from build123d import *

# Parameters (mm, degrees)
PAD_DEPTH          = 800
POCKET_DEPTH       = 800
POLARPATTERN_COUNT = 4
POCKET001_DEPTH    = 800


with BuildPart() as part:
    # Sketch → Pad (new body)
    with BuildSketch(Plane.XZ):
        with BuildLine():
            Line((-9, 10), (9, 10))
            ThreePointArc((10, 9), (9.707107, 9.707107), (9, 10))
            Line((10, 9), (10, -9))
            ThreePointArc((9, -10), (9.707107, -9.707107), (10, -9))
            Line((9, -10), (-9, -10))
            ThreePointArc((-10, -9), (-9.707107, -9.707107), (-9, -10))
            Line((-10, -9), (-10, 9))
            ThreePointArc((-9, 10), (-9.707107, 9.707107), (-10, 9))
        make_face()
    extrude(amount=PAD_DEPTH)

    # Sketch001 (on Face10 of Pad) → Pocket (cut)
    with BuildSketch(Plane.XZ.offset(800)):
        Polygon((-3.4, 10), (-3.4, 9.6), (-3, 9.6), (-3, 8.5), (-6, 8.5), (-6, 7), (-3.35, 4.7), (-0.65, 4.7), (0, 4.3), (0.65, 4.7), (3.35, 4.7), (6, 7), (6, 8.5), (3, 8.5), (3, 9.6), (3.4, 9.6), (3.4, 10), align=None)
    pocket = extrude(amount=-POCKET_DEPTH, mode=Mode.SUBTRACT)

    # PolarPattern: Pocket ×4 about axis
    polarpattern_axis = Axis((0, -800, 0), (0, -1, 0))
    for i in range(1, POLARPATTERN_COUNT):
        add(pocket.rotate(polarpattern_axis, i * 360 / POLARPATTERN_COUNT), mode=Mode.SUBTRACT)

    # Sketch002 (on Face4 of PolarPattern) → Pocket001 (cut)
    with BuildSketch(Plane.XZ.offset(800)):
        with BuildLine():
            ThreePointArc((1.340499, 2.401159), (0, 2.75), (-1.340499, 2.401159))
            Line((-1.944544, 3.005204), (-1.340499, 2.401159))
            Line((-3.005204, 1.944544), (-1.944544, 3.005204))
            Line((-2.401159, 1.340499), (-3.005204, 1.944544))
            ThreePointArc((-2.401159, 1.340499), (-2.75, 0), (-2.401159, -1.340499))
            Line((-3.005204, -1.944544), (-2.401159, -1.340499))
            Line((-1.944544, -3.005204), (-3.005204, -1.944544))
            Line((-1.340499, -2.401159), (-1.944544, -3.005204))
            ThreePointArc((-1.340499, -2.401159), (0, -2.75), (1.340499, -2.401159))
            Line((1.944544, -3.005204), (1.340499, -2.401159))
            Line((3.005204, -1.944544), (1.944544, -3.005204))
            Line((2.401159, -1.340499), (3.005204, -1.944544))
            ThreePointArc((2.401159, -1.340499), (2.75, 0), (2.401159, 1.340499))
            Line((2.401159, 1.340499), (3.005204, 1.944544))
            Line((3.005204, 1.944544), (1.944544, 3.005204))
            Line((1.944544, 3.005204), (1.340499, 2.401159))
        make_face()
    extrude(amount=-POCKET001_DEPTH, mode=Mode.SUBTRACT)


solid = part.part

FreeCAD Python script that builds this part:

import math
import FreeCAD as App
import Part
import Sketcher

V = App.Vector

doc = App.newDocument("Part")
params = doc.addObject("Spreadsheet::Sheet", "Params")
for row, (alias, value) in enumerate([
    ("sketch1_radius", "0.999999 mm"),
    ("sketch1_width", "18 mm"),
    ("pad1_length", "800 mm"),
    ("sketch2_width", "3 mm"),
    ("sketch2_width2", "0.4 mm"),
    ("sketch2_width3", "2.7 mm"),
    ("sketch2_width4", "6.8 mm"),
    ("sketch2_height", "1.1 mm"),
    ("pocket1_length", "800 mm"),
    ("sketch3_length", "1.5 mm"),
    ("pocket2_length", "800 mm"),
], start=1):
    params.set(f"A{row}", alias)
    params.set(f"B{row}", "=" + value)
    params.setAlias(f"B{row}", alias)

body = doc.addObject("PartDesign::Body", "Body")

# Sketch on XZ plane
sketch1 = body.newObject("Sketcher::SketchObject", "Sketch")
sketch1.AttachmentSupport = (doc.getObject("XZ_Plane"), [""])
sketch1.MapMode = "FlatFace"
sketch1.addGeometry(Part.LineSegment(V(9, 10, 0), V(-9, 10, 0)), False)
sketch1.addGeometry(Part.ArcOfCircle(Part.Circle(V(-9, 9, 0), V(0, 0, 1), 1), math.radians(90), math.radians(180)), False)
sketch1.addGeometry(Part.LineSegment(V(-10, 9, 0), V(-10, -9, 0)), False)
sketch1.addGeometry(Part.ArcOfCircle(Part.Circle(V(-9, -9, 0), V(0, 0, 1), 1), math.radians(180), math.radians(270)), False)
sketch1.addGeometry(Part.LineSegment(V(-9, -10, 0), V(9, -10, 0)), False)
sketch1.addGeometry(Part.ArcOfCircle(Part.Circle(V(9, -9, 0), V(0, 0, 1), 1), math.radians(-90), math.radians(0)), False)
sketch1.addGeometry(Part.LineSegment(V(10, -9, 0), V(10, 9, 0)), False)
sketch1.addGeometry(Part.ArcOfCircle(Part.Circle(V(9, 9, 0), V(0, 0, 1), 1), math.radians(0), math.radians(90)), False)
sketch1.addConstraint(Sketcher.Constraint("Tangent", 0, 2, 1, 1))
sketch1.addConstraint(Sketcher.Constraint("Tangent", 1, 2, 2, 1))
sketch1.addConstraint(Sketcher.Constraint("Tangent", 2, 2, 3, 1))
sketch1.addConstraint(Sketcher.Constraint("Tangent", 3, 2, 4, 1))
sketch1.addConstraint(Sketcher.Constraint("Tangent", 4, 2, 5, 1))
sketch1.addConstraint(Sketcher.Constraint("Tangent", 5, 2, 6, 1))
sketch1.addConstraint(Sketcher.Constraint("Tangent", 6, 2, 7, 1))
sketch1.addConstraint(Sketcher.Constraint("Tangent", 7, 2, 0, 1))
sketch1.addConstraint(Sketcher.Constraint("Horizontal", 0))
sketch1.addConstraint(Sketcher.Constraint("Vertical", 2))
sketch1.addConstraint(Sketcher.Constraint("Horizontal", 4))
sketch1.addConstraint(Sketcher.Constraint("Vertical", 6))
sketch1.addConstraint(Sketcher.Constraint("Equal", 1, 3))
sketch1.addConstraint(Sketcher.Constraint("Equal", 3, 5))
sketch1.addConstraint(Sketcher.Constraint("Equal", 5, 7))
sketch1.addConstraint(Sketcher.Constraint("Symmetric", 1, 3, 5, 3, -1, 1))
sketch1.addConstraint(Sketcher.Constraint("Equal", 4, 2))
sketch1.addConstraint(Sketcher.Constraint("Radius", 1, 0.999999))
sketch1.addConstraint(Sketcher.Constraint("DistanceX", 0, 2, 0, 1, 18.0))
sketch1.setExpression("Constraints[17]", "Params.sketch1_radius")
sketch1.setExpression("Constraints[18]", "Params.sketch1_width")
pad1 = body.newObject("PartDesign::Pad", "Pad")
pad1.Profile = sketch1
pad1.setExpression("Length", "Params.pad1_length")

# Sketch on XZ plane
sketch2 = body.newObject("Sketcher::SketchObject", "Sketch001")
sketch2.AttachmentSupport = (doc.getObject("XZ_Plane"), [""])
sketch2.MapMode = "FlatFace"
sketch2.AttachmentOffset = App.Placement(V(0, 0, 800), App.Rotation())
sketch2.addGeometry(Part.LineSegment(V(-3.4, 10, 0), V(-3.4, 9.6, 0)), False)
sketch2.addGeometry(Part.LineSegment(V(-3.4, 9.6, 0), V(-3, 9.6, 0)), False)
sketch2.addGeometry(Part.LineSegment(V(-3, 9.6, 0), V(-3, 8.5, 0)), False)
sketch2.addGeometry(Part.LineSegment(V(-3, 8.5, 0), V(-6, 8.5, 0)), False)
sketch2.addGeometry(Part.LineSegment(V(-6, 8.5, 0), V(-6, 7, 0)), False)
sketch2.addGeometry(Part.LineSegment(V(-6, 7, 0), V(-3.35, 4.7, 0)), False)
sketch2.addGeometry(Part.LineSegment(V(-3.35, 4.7, 0), V(-0.65, 4.7, 0)), False)
sketch2.addGeometry(Part.LineSegment(V(-0.65, 4.7, 0), V(0, 4.3, 0)), False)
sketch2.addGeometry(Part.LineSegment(V(0, 4.3, 0), V(0.65, 4.7, 0)), False)
sketch2.addGeometry(Part.LineSegment(V(0.65, 4.7, 0), V(3.35, 4.7, 0)), False)
sketch2.addGeometry(Part.LineSegment(V(3.35, 4.7, 0), V(6, 7, 0)), False)
sketch2.addGeometry(Part.LineSegment(V(6, 7, 0), V(6, 8.5, 0)), False)
sketch2.addGeometry(Part.LineSegment(V(6, 8.5, 0), V(3, 8.5, 0)), False)
sketch2.addGeometry(Part.LineSegment(V(3, 8.5, 0), V(3, 9.6, 0)), False)
sketch2.addGeometry(Part.LineSegment(V(3, 9.6, 0), V(3.4, 9.6, 0)), False)
sketch2.addGeometry(Part.LineSegment(V(3.4, 9.6, 0), V(3.4, 10, 0)), False)
sketch2.addGeometry(Part.LineSegment(V(3.4, 10, 0), V(-3.4, 10, 0)), False)
sketch2.addConstraint(Sketcher.Constraint("Coincident", 0, 2, 1, 1))
sketch2.addConstraint(Sketcher.Constraint("Coincident", 1, 2, 2, 1))
sketch2.addConstraint(Sketcher.Constraint("Coincident", 2, 2, 3, 1))
sketch2.addConstraint(Sketcher.Constraint("Coincident", 3, 2, 4, 1))
sketch2.addConstraint(Sketcher.Constraint("Coincident", 4, 2, 5, 1))
sketch2.addConstraint(Sketcher.Constraint("Coincident", 5, 2, 6, 1))
sketch2.addConstraint(Sketcher.Constraint("Coincident", 6, 2, 7, 1))
sketch2.addConstraint(Sketcher.Constraint("Coincident", 7, 2, 8, 1))
sketch2.addConstraint(Sketcher.Constraint("Coincident", 8, 2, 9, 1))
sketch2.addConstraint(Sketcher.Constraint("Coincident", 9, 2, 10, 1))
sketch2.addConstraint(Sketcher.Constraint("Coincident", 10, 2, 11, 1))
sketch2.addConstraint(Sketcher.Constraint("Coincident", 11, 2, 12, 1))
sketch2.addConstraint(Sketcher.Constraint("Coincident", 12, 2, 13, 1))
sketch2.addConstraint(Sketcher.Constraint("Coincident", 13, 2, 14, 1))
sketch2.addConstraint(Sketcher.Constraint("Coincident", 14, 2, 15, 1))
sketch2.addConstraint(Sketcher.Constraint("Coincident", 15, 2, 16, 1))
sketch2.addConstraint(Sketcher.Constraint("Coincident", 16, 2, 0, 1))
sketch2.addConstraint(Sketcher.Constraint("Vertical", 0))
sketch2.addConstraint(Sketcher.Constraint("Horizontal", 1))
sketch2.addConstraint(Sketcher.Constraint("Vertical", 2))
sketch2.addConstraint(Sketcher.Constraint("Horizontal", 3))
sketch2.addConstraint(Sketcher.Constraint("Vertical", 4))
sketch2.addConstraint(Sketcher.Constraint("Horizontal", 6))
sketch2.addConstraint(Sketcher.Constraint("Horizontal", 9))
sketch2.addConstraint(Sketcher.Constraint("Vertical", 11))
sketch2.addConstraint(Sketcher.Constraint("Horizontal", 12))
sketch2.addConstraint(Sketcher.Constraint("Vertical", 13))
sketch2.addConstraint(Sketcher.Constraint("Horizontal", 14))
sketch2.addConstraint(Sketcher.Constraint("Vertical", 15))
sketch2.addConstraint(Sketcher.Constraint("Horizontal", 16))
sketch2.addConstraint(Sketcher.Constraint("Symmetric", 6, 2, 8, 2, -2))
sketch2.addConstraint(Sketcher.Constraint("Symmetric", 4, 2, 10, 2, -2))
sketch2.addConstraint(Sketcher.Constraint("Symmetric", 2, 2, 12, 2, -2))
sketch2.addConstraint(Sketcher.Constraint("Symmetric", 0, 2, 14, 2, -2))
sketch2.addConstraint(Sketcher.Constraint("PointOnObject", 7, 2, -2))
sketch2.addConstraint(Sketcher.Constraint("Equal", 6, 9))
sketch2.addConstraint(Sketcher.Constraint("Equal", 14, 0))
sketch2.addConstraint(Sketcher.Constraint("DistanceX", 3, 2, 3, 1, 3.0))
sketch2.addConstraint(Sketcher.Constraint("DistanceX", 1, 1, 1, 2, 0.4))
sketch2.addConstraint(Sketcher.Constraint("DistanceX", 6, 1, 6, 2, 2.7))
sketch2.addConstraint(Sketcher.Constraint("DistanceX", 16, 2, 16, 1, 6.8))
sketch2.addConstraint(Sketcher.Constraint("DistanceY", 2, 2, 2, 1, 1.1))
sketch2.addConstraint(Sketcher.Constraint("DistanceY", 4, 2, 4, 1, 1.5))
sketch2.addConstraint(Sketcher.Constraint("DistanceY", -1, 1, 4, 2, 7.0))
sketch2.addConstraint(Sketcher.Constraint("DistanceX", 5, 2, 8, 2, 4.0))
sketch2.addConstraint(Sketcher.Constraint("DistanceY", -1, 1, 5, 2, 4.7))
sketch2.addConstraint(Sketcher.Constraint("DistanceY", -1, 1, 7, 2, 4.3))
sketch2.setExpression("Constraints[37]", "Params.sketch2_width")
sketch2.setExpression("Constraints[38]", "Params.sketch2_width2")
sketch2.setExpression("Constraints[39]", "Params.sketch2_width3")
sketch2.setExpression("Constraints[40]", "Params.sketch2_width4")
sketch2.setExpression("Constraints[41]", "Params.sketch2_height")
pocket1 = body.newObject("PartDesign::Pocket", "Pocket")
pocket1.Profile = sketch2
pocket1.setExpression("Length", "Params.pocket1_length")
doc.recompute()

polarpattern = body.newObject("PartDesign::PolarPattern", "PolarPattern")
polarpattern.Originals = [pocket1]
polarpattern.Axis = (doc.getObject("Y_Axis"), [""])
polarpattern.Angle = 360
polarpattern.Occurrences = 4
body.Tip = polarpattern

# Sketch on XZ plane
sketch3 = body.newObject("Sketcher::SketchObject", "Sketch002")
sketch3.AttachmentSupport = (doc.getObject("XZ_Plane"), [""])
sketch3.MapMode = "FlatFace"
sketch3.AttachmentOffset = App.Placement(V(0, 0, 800), App.Rotation())
sketch3.addGeometry(Part.ArcOfCircle(Part.Circle(V(0, 0, 0), V(0, 0, 1), 2.8), math.radians(61), math.radians(119)), False)
sketch3.addGeometry(Part.LineSegment(V(-1.3, 2.4, 0), V(-1.9, 3, 0)), False)
sketch3.addGeometry(Part.LineSegment(V(-1.9, 3, 0), V(-3, 1.9, 0)), False)
sketch3.addGeometry(Part.LineSegment(V(-3, 1.9, 0), V(-2.4, 1.3, 0)), False)
sketch3.addGeometry(Part.ArcOfCircle(Part.Circle(V(0, 0, 0), V(0, 0, 1), 2.8), math.radians(151), math.radians(209)), False)
sketch3.addGeometry(Part.LineSegment(V(-2.4, -1.3, 0), V(-3, -1.9, 0)), False)
sketch3.addGeometry(Part.LineSegment(V(-3, -1.9, 0), V(-1.9, -3, 0)), False)
sketch3.addGeometry(Part.LineSegment(V(-1.9, -3, 0), V(-1.3, -2.4, 0)), False)
sketch3.addGeometry(Part.ArcOfCircle(Part.Circle(V(0, 0, 0), V(0, 0, 1), 2.8), math.radians(-119), math.radians(-61)), False)
sketch3.addGeometry(Part.LineSegment(V(1.3, -2.4, 0), V(1.9, -3, 0)), False)
sketch3.addGeometry(Part.LineSegment(V(1.9, -3, 0), V(3, -1.9, 0)), False)
sketch3.addGeometry(Part.LineSegment(V(3, -1.9, 0), V(2.4, -1.3, 0)), False)
sketch3.addGeometry(Part.ArcOfCircle(Part.Circle(V(0, 0, 0), V(0, 0, 1), 2.8), math.radians(-29), math.radians(29)), False)
sketch3.addGeometry(Part.LineSegment(V(2.4, 1.3, 0), V(3, 1.9, 0)), False)
sketch3.addGeometry(Part.LineSegment(V(3, 1.9, 0), V(1.9, 3, 0)), False)
sketch3.addGeometry(Part.LineSegment(V(1.9, 3, 0), V(1.3, 2.4, 0)), False)
sketch3.addConstraint(Sketcher.Constraint("Coincident", 0, 2, 1, 1))
sketch3.addConstraint(Sketcher.Constraint("Coincident", 1, 2, 2, 1))
sketch3.addConstraint(Sketcher.Constraint("Coincident", 2, 2, 3, 1))
sketch3.addConstraint(Sketcher.Constraint("Coincident", 3, 2, 4, 1))
sketch3.addConstraint(Sketcher.Constraint("Coincident", 4, 2, 5, 1))
sketch3.addConstraint(Sketcher.Constraint("Coincident", 5, 2, 6, 1))
sketch3.addConstraint(Sketcher.Constraint("Coincident", 6, 2, 7, 1))
sketch3.addConstraint(Sketcher.Constraint("Coincident", 7, 2, 8, 1))
sketch3.addConstraint(Sketcher.Constraint("Coincident", 8, 2, 9, 1))
sketch3.addConstraint(Sketcher.Constraint("Coincident", 9, 2, 10, 1))
sketch3.addConstraint(Sketcher.Constraint("Coincident", 10, 2, 11, 1))
sketch3.addConstraint(Sketcher.Constraint("Coincident", 11, 2, 12, 1))
sketch3.addConstraint(Sketcher.Constraint("Coincident", 12, 2, 13, 1))
sketch3.addConstraint(Sketcher.Constraint("Coincident", 13, 2, 14, 1))
sketch3.addConstraint(Sketcher.Constraint("Coincident", 14, 2, 15, 1))
sketch3.addConstraint(Sketcher.Constraint("Coincident", 15, 2, 0, 1))
sketch3.addConstraint(Sketcher.Constraint("Coincident", 0, 3, -1, 1))
sketch3.addConstraint(Sketcher.Constraint("Coincident", 4, 3, -1, 1))
sketch3.addConstraint(Sketcher.Constraint("Coincident", 8, 3, -1, 1))
sketch3.addConstraint(Sketcher.Constraint("Coincident", 12, 3, -1, 1))
sketch3.addConstraint(Sketcher.Constraint("Equal", 0, 4))
sketch3.addConstraint(Sketcher.Constraint("Equal", 4, 8))
sketch3.addConstraint(Sketcher.Constraint("Equal", 8, 12))
sketch3.addConstraint(Sketcher.Constraint("Symmetric", 1, 2, 9, 2, -1, 1))
sketch3.addConstraint(Sketcher.Constraint("Symmetric", 2, 2, 10, 2, -1, 1))
sketch3.addConstraint(Sketcher.Constraint("Symmetric", 5, 2, 13, 2, -1, 1))
sketch3.addConstraint(Sketcher.Constraint("Symmetric", 6, 2, 14, 2, -1, 1))
sketch3.addConstraint(Sketcher.Constraint("Symmetric", 6, 2, 9, 2, -2))
sketch3.addConstraint(Sketcher.Constraint("Symmetric", 5, 2, 10, 2, -2))
sketch3.addConstraint(Sketcher.Constraint("Perpendicular", 1, 2))
sketch3.addConstraint(Sketcher.Constraint("Perpendicular", 2, 3))
sketch3.addConstraint(Sketcher.Constraint("Perpendicular", 3, 5))
sketch3.addConstraint(Sketcher.Constraint("Perpendicular", 5, 6))
sketch3.addConstraint(Sketcher.Constraint("Perpendicular", 6, 7))
sketch3.addConstraint(Sketcher.Constraint("Perpendicular", 7, 9))
sketch3.addConstraint(Sketcher.Constraint("Perpendicular", 10, 11))
sketch3.addConstraint(Sketcher.Constraint("Perpendicular", 11, 13))
sketch3.addConstraint(Sketcher.Constraint("Perpendicular", 14, 15))
sketch3.addConstraint(Sketcher.Constraint("Equal", 1, 3))
sketch3.addConstraint(Sketcher.Constraint("Distance", 2, 1.5))
sketch3.addConstraint(Sketcher.Constraint("Radius", 0, 2.750003))
sketch3.addConstraint(Sketcher.Constraint("DistanceY", 8, 3, 1, 2, 3.005201))
sketch3.setExpression("Constraints[39]", "Params.sketch3_length")
pocket2 = body.newObject("PartDesign::Pocket", "Pocket001")
pocket2.Profile = sketch3
pocket2.setExpression("Length", "Params.pocket2_length")

doc.recompute()
